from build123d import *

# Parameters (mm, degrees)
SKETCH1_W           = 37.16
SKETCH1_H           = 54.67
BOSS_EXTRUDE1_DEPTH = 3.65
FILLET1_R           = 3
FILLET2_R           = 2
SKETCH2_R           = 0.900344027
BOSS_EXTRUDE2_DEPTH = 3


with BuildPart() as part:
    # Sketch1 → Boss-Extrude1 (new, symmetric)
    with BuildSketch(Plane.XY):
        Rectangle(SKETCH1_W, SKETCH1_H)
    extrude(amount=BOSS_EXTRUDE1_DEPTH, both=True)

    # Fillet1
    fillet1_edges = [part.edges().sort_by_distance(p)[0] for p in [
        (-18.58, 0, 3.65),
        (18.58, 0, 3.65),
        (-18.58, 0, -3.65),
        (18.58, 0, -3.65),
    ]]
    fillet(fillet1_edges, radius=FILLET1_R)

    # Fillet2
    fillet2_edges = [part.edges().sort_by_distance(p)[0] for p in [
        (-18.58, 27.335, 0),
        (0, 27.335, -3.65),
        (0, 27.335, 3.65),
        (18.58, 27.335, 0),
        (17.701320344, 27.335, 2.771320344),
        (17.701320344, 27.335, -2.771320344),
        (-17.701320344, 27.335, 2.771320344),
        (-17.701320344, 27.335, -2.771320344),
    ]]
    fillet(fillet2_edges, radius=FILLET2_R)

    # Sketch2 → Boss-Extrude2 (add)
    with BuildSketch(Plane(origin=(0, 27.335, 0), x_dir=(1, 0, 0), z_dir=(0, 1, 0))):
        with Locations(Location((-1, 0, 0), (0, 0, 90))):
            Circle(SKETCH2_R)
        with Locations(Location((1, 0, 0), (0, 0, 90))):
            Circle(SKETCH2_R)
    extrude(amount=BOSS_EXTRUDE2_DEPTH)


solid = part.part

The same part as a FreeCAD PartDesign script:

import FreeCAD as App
import Part
import Sketcher
from FreeCAD import Vector
Q = App.Units.Quantity


def edges_at(feature, points):
    """Names of the edges that pass closest to the given points."""
    edges = feature.Shape.Edges
    near = lambda p: min(range(len(edges)), key=lambda i: edges[i].distToShape(Part.Vertex(*p))[0])
    return sorted({f"Edge{near(p) + 1}" for p in points})


def add_polygon(sketch, points):
    """Adds a closed chain of lines whose ends are joined by coincident constraints."""
    first, n = sketch.GeometryCount, len(points)
    for a, b in zip(points, points[1:] + points[:1]):
        sketch.addGeometry(Part.LineSegment(App.Vector(*a, 0), App.Vector(*b, 0)), False)
    for i in range(n):
        sketch.addConstraint(Sketcher.Constraint("Coincident", first + i, 2, first + (i + 1) % n, 1))

doc = App.newDocument("Part")
params = doc.addObject("Spreadsheet::Sheet", "Params")
for row, (alias, value) in enumerate([
    ("sketch1_width", "37.16 mm"),
    ("sketch1_height", "54.67 mm"),
    ("pad1_length", "7.3 mm"),
    ("fillet_radius", "3 mm"),
    ("fillet2_radius", "2 mm"),
    ("pad2_length", "3 mm"),
], start=1):
    params.set(f"A{row}", alias)
    params.set(f"B{row}", "=" + value)
    params.setAlias(f"B{row}", alias)

body = doc.addObject("PartDesign::Body", "Body")

# Sketch on XY plane
sketch1 = body.newObject("Sketcher::SketchObject", "Sketch")
sketch1.AttachmentSupport = (doc.getObject("XY_Plane"), [""])
sketch1.MapMode = "FlatFace"
add_polygon(sketch1, [(-19, 27), (-19, -27), (19, -27), (19, 27)])  # lines 0-3
sketch1.addConstraint(Sketcher.Constraint("Vertical", 0))
sketch1.addConstraint(Sketcher.Constraint("Horizontal", 1))
sketch1.addConstraint(Sketcher.Constraint("Vertical", 2))
sketch1.addConstraint(Sketcher.Constraint("Horizontal", 3))
sketch1.addConstraint(Sketcher.Constraint("Symmetric", 0, 2, 2, 2, -1, 1))
sketch1.addConstraint(Sketcher.Constraint("DistanceX", 1, 1, 1, 2, Q("37.16 mm")))
sketch1.addConstraint(Sketcher.Constraint("DistanceY", 0, 2, 0, 1, Q("54.67 mm")))
sketch1.setExpression("Constraints[9]", "Params.sketch1_width")
sketch1.setExpression("Constraints[10]", "Params.sketch1_height")
pad1 = body.newObject("PartDesign::Pad", "Pad")
pad1.Profile = sketch1
pad1.setExpression("Length", "Params.pad1_length")
pad1.Midplane = True
doc.recompute()

fillet = body.newObject("PartDesign::Fillet", "Fillet")
fillet.Base = (pad1, edges_at(pad1, [
    (-18.58, 0, 3.65),
    (18.58, 0, 3.65),
    (-18.58, 0, -3.65),
    (18.58, 0, -3.65),
]))
fillet.setExpression("Radius", "Params.fillet_radius")
doc.recompute()

fillet2 = body.newObject("PartDesign::Fillet", "Fillet001")
fillet2.Base = (fillet, edges_at(fillet, [
    (-18.58, 27.335, 0),
    (0, 27.335, -3.65),
    (0, 27.335, 3.65),
    (18.58, 27.335, 0),
    (17.701, 27.335, 2.771),
    (17.701, 27.335, -2.771),
    (-17.701, 27.335, 2.771),
    (-17.701, 27.335, -2.771),
]))
fillet2.setExpression("Radius", "Params.fillet2_radius")

# Sketch on XZ plane
sketch2 = body.newObject("Sketcher::SketchObject", "Sketch001")
sketch2.AttachmentSupport = (doc.getObject("XZ_Plane"), [""])
sketch2.MapMode = "FlatFace"
sketch2.AttachmentOffset = App.Placement(Vector(0, 0, -27.335), App.Rotation())
sketch2.addGeometry(Part.Circle(Vector(-1, 0, 0), Vector(0, 0, 1), 0.9), False)
sketch2.addGeometry(Part.Circle(Vector(1, 0, 0), Vector(0, 0, 1), 0.9), False)
sketch2.addConstraint(Sketcher.Constraint("Equal", 0, 1))
sketch2.addConstraint(Sketcher.Constraint("Symmetric", 0, 3, 1, 3, -1, 1))
sketch2.addConstraint(Sketcher.Constraint("PointOnObject", 0, 3, -1))
sketch2.addConstraint(Sketcher.Constraint("DistanceX", 0, 3, -1, 1, Q("1 mm")))
sketch2.addConstraint(Sketcher.Constraint("Diameter", 0, Q("1.800688 mm")))
pad2 = body.newObject("PartDesign::Pad", "Pad001")
pad2.Profile = sketch2
pad2.setExpression("Length", "Params.pad2_length")
pad2.Reversed = True

doc.recompute()
